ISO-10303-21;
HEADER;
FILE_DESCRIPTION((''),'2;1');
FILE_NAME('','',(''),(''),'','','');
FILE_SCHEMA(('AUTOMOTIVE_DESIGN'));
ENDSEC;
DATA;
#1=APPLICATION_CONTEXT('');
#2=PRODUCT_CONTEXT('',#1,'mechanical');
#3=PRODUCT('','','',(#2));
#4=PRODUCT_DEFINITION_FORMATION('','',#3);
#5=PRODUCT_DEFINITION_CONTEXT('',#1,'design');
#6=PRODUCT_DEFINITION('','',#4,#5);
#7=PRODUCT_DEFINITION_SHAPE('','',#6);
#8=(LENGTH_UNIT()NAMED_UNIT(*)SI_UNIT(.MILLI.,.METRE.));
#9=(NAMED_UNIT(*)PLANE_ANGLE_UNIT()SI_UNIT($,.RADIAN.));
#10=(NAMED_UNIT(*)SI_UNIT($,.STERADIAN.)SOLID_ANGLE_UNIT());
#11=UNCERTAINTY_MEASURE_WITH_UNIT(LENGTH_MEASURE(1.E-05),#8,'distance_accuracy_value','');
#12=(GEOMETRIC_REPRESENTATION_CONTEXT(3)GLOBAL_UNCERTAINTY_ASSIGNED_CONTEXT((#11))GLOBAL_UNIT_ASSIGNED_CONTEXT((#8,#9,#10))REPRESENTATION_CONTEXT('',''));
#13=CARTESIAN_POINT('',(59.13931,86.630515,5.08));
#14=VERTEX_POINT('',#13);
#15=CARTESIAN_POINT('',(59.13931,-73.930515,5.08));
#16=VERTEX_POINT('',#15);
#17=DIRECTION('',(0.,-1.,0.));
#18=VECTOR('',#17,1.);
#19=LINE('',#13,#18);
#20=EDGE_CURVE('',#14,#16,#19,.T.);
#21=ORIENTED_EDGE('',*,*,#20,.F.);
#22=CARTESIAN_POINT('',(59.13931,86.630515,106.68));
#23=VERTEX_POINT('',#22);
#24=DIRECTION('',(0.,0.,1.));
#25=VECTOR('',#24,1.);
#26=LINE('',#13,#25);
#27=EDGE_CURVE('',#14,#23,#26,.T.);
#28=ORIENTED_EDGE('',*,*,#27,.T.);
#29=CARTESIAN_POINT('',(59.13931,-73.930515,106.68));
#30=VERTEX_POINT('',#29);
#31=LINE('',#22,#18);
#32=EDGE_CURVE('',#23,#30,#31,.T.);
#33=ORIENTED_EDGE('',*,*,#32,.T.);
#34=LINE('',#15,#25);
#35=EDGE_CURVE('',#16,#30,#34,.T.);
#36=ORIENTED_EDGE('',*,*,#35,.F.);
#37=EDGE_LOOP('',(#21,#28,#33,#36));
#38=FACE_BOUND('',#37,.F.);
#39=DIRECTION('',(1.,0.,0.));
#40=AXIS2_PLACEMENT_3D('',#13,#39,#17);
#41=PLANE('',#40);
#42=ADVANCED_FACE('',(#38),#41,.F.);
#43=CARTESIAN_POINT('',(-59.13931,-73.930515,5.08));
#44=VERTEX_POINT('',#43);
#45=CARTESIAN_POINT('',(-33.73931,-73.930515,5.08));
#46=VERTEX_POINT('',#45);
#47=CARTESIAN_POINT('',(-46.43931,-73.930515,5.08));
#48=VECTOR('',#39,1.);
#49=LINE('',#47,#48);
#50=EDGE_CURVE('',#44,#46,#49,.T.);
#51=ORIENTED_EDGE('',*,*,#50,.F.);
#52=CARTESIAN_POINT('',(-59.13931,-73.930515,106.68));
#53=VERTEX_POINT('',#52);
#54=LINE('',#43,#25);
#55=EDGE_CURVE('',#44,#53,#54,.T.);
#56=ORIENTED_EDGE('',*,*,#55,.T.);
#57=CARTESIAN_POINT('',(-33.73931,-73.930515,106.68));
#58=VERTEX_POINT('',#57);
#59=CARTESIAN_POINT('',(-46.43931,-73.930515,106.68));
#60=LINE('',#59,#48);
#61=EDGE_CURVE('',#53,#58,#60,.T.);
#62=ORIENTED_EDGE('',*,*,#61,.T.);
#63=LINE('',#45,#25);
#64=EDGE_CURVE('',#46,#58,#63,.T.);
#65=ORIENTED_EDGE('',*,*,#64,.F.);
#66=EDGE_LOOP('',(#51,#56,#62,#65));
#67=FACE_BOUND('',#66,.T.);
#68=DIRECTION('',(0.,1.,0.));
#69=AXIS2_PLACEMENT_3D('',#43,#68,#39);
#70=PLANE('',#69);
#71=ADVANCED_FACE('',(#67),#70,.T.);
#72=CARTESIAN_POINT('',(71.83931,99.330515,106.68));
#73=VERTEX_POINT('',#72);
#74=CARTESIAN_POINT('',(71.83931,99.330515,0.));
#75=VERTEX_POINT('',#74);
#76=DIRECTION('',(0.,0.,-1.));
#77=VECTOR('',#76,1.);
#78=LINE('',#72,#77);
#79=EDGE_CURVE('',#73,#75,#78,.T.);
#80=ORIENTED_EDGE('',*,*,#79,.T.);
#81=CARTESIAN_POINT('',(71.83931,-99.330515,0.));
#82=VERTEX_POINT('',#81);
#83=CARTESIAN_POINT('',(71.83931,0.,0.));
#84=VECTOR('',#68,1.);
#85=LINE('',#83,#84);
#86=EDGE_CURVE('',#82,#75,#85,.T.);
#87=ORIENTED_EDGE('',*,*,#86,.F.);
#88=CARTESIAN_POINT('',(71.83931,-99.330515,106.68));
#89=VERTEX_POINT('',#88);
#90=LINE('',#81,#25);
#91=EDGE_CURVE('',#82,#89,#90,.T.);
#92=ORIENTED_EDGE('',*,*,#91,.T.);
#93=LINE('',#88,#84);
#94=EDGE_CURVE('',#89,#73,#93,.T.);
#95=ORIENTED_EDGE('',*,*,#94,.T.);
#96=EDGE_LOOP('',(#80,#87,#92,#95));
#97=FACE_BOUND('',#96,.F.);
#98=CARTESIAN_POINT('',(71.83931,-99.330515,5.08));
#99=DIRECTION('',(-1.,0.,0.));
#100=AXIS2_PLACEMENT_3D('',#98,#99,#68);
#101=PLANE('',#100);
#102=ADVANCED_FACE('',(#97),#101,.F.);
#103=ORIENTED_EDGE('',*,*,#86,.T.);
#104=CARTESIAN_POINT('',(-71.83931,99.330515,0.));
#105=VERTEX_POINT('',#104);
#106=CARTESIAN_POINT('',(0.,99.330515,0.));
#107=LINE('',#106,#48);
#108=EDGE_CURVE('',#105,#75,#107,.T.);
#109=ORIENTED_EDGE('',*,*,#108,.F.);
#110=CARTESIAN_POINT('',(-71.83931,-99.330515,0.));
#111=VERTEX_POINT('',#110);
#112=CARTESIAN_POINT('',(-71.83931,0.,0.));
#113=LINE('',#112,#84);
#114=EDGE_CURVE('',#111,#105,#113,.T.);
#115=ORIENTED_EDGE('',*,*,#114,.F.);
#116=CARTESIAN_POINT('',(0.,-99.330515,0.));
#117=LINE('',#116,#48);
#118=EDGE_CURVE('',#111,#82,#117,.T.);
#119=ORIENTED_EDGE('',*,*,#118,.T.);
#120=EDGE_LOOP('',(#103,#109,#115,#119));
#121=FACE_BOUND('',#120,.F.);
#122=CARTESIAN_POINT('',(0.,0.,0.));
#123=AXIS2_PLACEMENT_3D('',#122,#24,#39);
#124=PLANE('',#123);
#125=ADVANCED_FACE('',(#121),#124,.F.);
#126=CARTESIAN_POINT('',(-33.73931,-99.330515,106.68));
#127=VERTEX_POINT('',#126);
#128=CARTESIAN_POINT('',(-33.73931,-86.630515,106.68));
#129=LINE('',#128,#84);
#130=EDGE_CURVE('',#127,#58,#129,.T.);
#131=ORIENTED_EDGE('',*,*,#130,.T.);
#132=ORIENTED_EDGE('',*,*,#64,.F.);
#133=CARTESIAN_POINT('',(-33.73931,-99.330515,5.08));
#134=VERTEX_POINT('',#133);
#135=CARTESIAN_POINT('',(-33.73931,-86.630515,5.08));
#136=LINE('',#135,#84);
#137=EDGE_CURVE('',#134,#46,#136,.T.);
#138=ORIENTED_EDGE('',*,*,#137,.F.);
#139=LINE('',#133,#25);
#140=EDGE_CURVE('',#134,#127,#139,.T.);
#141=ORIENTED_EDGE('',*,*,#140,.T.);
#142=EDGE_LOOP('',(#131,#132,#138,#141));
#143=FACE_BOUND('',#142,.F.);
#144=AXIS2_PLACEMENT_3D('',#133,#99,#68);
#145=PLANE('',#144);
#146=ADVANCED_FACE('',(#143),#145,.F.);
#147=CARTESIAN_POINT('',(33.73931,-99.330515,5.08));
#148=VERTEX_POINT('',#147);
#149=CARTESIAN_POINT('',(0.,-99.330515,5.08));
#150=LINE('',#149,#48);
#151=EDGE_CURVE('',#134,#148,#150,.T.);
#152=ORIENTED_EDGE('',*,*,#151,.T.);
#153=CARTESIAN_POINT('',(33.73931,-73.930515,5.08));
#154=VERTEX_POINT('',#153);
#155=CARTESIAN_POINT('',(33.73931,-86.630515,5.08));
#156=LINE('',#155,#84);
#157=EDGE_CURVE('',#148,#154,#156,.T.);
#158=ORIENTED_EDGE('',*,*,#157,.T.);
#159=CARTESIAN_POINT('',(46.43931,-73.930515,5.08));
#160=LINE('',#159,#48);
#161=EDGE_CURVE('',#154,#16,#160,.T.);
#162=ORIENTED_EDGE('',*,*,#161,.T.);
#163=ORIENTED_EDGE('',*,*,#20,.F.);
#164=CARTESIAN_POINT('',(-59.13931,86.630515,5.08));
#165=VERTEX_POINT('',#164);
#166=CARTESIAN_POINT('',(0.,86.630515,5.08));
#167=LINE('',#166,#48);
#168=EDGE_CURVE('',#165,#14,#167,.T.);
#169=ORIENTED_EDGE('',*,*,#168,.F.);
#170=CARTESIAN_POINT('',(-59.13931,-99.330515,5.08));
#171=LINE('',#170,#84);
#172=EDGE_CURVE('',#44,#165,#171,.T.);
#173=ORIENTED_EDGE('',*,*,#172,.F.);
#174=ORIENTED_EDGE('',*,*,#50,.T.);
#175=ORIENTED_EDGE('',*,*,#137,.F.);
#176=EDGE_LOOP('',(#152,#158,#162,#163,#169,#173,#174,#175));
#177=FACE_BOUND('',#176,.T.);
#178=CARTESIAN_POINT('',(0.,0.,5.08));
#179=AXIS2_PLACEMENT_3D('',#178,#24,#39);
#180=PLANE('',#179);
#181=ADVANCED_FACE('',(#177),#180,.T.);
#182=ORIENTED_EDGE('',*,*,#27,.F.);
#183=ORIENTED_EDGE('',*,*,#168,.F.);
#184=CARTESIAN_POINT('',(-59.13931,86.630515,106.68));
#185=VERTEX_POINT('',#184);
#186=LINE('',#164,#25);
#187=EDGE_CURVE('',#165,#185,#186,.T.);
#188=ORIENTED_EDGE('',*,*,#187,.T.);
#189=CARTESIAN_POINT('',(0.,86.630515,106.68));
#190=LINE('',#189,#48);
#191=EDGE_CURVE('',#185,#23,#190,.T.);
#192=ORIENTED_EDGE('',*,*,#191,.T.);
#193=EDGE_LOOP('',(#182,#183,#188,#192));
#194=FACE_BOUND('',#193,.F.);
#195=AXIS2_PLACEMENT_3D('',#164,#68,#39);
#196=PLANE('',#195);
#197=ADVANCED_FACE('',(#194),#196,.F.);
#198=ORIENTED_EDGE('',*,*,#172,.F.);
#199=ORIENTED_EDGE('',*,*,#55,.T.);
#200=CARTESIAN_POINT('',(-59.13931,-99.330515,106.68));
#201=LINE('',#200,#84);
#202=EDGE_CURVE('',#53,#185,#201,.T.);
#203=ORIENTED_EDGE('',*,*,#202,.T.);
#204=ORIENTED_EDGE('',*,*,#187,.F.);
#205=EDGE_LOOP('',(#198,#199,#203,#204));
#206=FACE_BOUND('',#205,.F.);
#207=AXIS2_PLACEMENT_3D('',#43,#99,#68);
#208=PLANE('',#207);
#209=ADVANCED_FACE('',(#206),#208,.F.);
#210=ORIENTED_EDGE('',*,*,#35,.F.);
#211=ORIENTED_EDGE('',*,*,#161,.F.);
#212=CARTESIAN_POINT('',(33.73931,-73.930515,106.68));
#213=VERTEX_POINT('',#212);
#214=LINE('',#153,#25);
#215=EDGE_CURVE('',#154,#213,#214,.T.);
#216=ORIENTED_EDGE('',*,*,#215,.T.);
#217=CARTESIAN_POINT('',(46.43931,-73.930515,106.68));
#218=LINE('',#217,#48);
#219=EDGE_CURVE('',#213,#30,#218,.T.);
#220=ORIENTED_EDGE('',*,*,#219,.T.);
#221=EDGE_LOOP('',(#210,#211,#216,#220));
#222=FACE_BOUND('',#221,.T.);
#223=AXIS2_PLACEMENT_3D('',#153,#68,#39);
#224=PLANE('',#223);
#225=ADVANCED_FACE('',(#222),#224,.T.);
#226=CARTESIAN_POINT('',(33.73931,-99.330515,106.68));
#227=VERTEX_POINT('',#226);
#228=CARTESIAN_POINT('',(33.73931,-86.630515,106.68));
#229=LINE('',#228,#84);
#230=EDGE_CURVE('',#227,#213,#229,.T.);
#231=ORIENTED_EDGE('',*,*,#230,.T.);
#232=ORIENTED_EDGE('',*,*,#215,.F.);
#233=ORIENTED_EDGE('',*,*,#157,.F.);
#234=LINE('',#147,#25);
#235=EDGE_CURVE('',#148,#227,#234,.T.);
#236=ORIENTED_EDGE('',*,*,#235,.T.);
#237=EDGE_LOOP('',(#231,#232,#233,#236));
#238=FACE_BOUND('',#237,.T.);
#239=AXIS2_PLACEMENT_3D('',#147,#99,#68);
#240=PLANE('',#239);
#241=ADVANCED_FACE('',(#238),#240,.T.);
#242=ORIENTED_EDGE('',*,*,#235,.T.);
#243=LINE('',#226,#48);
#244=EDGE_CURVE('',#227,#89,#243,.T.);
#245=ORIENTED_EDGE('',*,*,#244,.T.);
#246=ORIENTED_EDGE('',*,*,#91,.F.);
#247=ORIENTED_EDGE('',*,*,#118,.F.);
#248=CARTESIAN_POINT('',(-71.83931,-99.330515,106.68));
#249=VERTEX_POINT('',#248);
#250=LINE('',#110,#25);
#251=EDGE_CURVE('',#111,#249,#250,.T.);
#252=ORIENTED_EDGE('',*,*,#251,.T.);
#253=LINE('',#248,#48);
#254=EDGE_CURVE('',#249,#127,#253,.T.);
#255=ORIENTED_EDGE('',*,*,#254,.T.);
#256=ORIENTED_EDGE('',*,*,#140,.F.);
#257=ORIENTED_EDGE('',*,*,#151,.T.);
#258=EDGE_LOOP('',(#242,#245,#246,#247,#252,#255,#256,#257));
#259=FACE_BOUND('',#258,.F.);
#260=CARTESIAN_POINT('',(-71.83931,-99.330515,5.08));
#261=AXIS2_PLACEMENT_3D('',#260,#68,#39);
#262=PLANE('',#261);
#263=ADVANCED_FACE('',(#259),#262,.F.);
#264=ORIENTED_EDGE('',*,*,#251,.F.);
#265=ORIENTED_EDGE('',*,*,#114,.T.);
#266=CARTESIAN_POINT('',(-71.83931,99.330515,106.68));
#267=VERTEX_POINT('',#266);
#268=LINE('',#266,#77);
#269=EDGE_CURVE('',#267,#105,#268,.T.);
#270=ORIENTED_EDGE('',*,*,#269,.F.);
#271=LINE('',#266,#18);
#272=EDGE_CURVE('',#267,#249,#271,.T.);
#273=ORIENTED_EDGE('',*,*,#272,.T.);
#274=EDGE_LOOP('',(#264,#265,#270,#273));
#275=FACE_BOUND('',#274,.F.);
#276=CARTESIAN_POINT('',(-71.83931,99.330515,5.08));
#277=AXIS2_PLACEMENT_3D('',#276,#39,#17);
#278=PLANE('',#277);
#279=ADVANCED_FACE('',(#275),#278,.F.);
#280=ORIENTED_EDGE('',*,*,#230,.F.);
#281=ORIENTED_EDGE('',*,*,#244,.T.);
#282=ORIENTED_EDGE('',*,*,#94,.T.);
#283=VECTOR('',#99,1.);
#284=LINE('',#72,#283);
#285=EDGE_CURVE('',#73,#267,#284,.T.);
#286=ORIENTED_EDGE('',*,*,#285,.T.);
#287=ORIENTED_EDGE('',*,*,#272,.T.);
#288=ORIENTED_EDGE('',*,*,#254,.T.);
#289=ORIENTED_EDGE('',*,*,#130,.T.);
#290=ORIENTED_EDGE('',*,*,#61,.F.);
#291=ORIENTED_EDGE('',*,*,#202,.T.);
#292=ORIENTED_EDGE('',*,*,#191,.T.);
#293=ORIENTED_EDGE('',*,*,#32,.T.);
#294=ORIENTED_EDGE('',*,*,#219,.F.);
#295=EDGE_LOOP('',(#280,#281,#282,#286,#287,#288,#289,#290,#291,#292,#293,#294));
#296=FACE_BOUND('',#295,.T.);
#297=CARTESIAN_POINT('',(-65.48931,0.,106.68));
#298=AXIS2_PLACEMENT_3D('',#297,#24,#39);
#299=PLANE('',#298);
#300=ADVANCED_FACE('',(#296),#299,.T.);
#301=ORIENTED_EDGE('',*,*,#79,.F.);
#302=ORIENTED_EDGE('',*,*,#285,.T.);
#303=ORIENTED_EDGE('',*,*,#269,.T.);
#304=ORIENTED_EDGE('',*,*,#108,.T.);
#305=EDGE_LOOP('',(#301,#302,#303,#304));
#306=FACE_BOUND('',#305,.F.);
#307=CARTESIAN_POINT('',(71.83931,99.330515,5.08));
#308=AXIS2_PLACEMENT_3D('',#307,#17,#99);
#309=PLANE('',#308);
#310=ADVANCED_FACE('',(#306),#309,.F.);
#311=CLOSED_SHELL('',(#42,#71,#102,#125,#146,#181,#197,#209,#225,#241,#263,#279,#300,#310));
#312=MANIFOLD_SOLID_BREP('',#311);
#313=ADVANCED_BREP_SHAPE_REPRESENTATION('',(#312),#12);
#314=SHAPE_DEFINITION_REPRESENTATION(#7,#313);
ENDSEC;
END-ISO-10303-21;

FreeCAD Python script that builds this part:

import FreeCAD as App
import Part
import Sketcher
Q = App.Units.Quantity

doc = App.newDocument("Part")
body = doc.addObject("PartDesign::Body", "Body")

# Sketch on XY plane
sketch1 = doc.addObject("Sketcher::SketchObject", "Sketch")
body.addObject(sketch1)
sketch1.AttachmentSupport = (doc.XY_Plane, [""])
sketch1.MapMode = "FlatFace"
sketch1.addGeometry([
    Part.LineSegment(App.Vector(-71.83931, 99.330515, 0), App.Vector(-71.83931, -99.330515, 0)),
    Part.LineSegment(App.Vector(-71.83931, -99.330515, 0), App.Vector(71.83931, -99.330515, 0)),
    Part.LineSegment(App.Vector(71.83931, -99.330515, 0), App.Vector(71.83931, 99.330515, 0)),
    Part.LineSegment(App.Vector(71.83931, 99.330515, 0), App.Vector(-71.83931, 99.330515, 0)),
], False)
sketch1.addConstraint([
    Sketcher.Constraint("Coincident", 0, 2, 1, 1),
    Sketcher.Constraint("Coincident", 1, 2, 2, 1),
    Sketcher.Constraint("Coincident", 2, 2, 3, 1),
    Sketcher.Constraint("Coincident", 3, 2, 0, 1),
    Sketcher.Constraint("Vertical", 0),
    Sketcher.Constraint("Horizontal", 1),
    Sketcher.Constraint("Vertical", 2),
    Sketcher.Constraint("Horizontal", 3),
    Sketcher.Constraint("Symmetric", 0, 2, 2, 2, -1, 1),
    Sketcher.Constraint("DistanceX", 1, 1, 1, 2, 143.67862),
    Sketcher.Constraint("DistanceY", 0, 2, 0, 1, 198.66103),
])
pad1 = doc.addObject("PartDesign::Pad", "Pad")
body.addObject(pad1)
pad1.Profile = sketch1
pad1.Length = Q("0.2 in")

# Sketch on XY plane
sketch2 = doc.addObject("Sketcher::SketchObject", "Sketch001")
body.addObject(sketch2)
sketch2.AttachmentSupport = (doc.XY_Plane, [""])
sketch2.MapMode = "FlatFace"
sketch2.AttachmentOffset = App.Placement(App.Vector(0, 0, 0.2 * 25.4), App.Rotation())
sketch2.addGeometry([
    Part.LineSegment(App.Vector(-71.83931, 99.330515, 0), App.Vector(-71.83931, -99.330515, 0)),  # 0
    Part.LineSegment(App.Vector(-71.83931, -99.330515, 0), App.Vector(-33.73931, -99.330515, 0)),  # 1
    Part.LineSegment(App.Vector(-33.73931, -99.330515, 0), App.Vector(-33.73931, -73.930515, 0)),  # 2
    Part.LineSegment(App.Vector(-33.73931, -73.930515, 0), App.Vector(-59.13931, -73.930515, 0)),  # 3
    Part.LineSegment(App.Vector(-59.13931, -73.930515, 0), App.Vector(-59.13931, 86.630515, 0)),  # 4
    Part.LineSegment(App.Vector(-59.13931, 86.630515, 0), App.Vector(59.13931, 86.630515, 0)),  # 5
    Part.LineSegment(App.Vector(59.13931, 86.630515, 0), App.Vector(59.13931, -73.930515, 0)),  # 6
    Part.LineSegment(App.Vector(59.13931, -73.930515, 0), App.Vector(33.73931, -73.930515, 0)),  # 7
    Part.LineSegment(App.Vector(33.73931, -73.930515, 0), App.Vector(33.73931, -99.330515, 0)),  # 8
    Part.LineSegment(App.Vector(33.73931, -99.330515, 0), App.Vector(71.83931, -99.330515, 0)),  # 9
    Part.LineSegment(App.Vector(71.83931, -99.330515, 0), App.Vector(71.83931, 99.330515, 0)),  # 10
    Part.LineSegment(App.Vector(71.83931, 99.330515, 0), App.Vector(-71.83931, 99.330515, 0)),  # 11
], False)
sketch2.addConstraint([
    Sketcher.Constraint("Coincident", 0, 2, 1, 1),
    Sketcher.Constraint("Coincident", 1, 2, 2, 1),
    Sketcher.Constraint("Coincident", 2, 2, 3, 1),
    Sketcher.Constraint("Coincident", 3, 2, 4, 1),
    Sketcher.Constraint("Coincident", 4, 2, 5, 1),
    Sketcher.Constraint("Coincident", 5, 2, 6, 1),
    Sketcher.Constraint("Coincident", 6, 2, 7, 1),
    Sketcher.Constraint("Coincident", 7, 2, 8, 1),
    Sketcher.Constraint("Coincident", 8, 2, 9, 1),
    Sketcher.Constraint("Coincident", 9, 2, 10, 1),
    Sketcher.Constraint("Coincident", 10, 2, 11, 1),
    Sketcher.Constraint("Coincident", 11, 2, 0, 1),
    Sketcher.Constraint("Vertical", 0),
    Sketcher.Constraint("Horizontal", 1),
    Sketcher.Constraint("Vertical", 2),
    Sketcher.Constraint("Horizontal", 3),
    Sketcher.Constraint("Vertical", 4),
    Sketcher.Constraint("Horizontal", 5),
    Sketcher.Constraint("Vertical", 6),
    Sketcher.Constraint("Horizontal", 7),
    Sketcher.Constraint("Vertical", 8),
    Sketcher.Constraint("Horizontal", 9),
    Sketcher.Constraint("Vertical", 10),
    Sketcher.Constraint("Horizontal", 11),
    Sketcher.Constraint("Symmetric", 0, 2, 10, 2, -1, 1),
    Sketcher.Constraint("Symmetric", 3, 2, 6, 2, -2),
    Sketcher.Constraint("Symmetric", 1, 2, 8, 2, -2),
    Sketcher.Constraint("Equal", 7, 2),
    Sketcher.Constraint("DistanceX", 3, 2, 3, 1, Q("1 in")),
    Sketcher.Constraint("DistanceX", 1, 1, 1, 2, Q("1.5 in")),
    Sketcher.Constraint("DistanceY", 5, 2, 10, 2, Q("0.5 in")),
    Sketcher.Constraint("DistanceX", 5, 1, 5, 2, 118.27862),
    Sketcher.Constraint("DistanceY", 0, 2, 0, 1, 198.66103),
])
pad2 = doc.addObject("PartDesign::Pad", "Pad001")
body.addObject(pad2)
pad2.Profile = sketch2
pad2.Length = Q("4 in")

doc.recompute()
